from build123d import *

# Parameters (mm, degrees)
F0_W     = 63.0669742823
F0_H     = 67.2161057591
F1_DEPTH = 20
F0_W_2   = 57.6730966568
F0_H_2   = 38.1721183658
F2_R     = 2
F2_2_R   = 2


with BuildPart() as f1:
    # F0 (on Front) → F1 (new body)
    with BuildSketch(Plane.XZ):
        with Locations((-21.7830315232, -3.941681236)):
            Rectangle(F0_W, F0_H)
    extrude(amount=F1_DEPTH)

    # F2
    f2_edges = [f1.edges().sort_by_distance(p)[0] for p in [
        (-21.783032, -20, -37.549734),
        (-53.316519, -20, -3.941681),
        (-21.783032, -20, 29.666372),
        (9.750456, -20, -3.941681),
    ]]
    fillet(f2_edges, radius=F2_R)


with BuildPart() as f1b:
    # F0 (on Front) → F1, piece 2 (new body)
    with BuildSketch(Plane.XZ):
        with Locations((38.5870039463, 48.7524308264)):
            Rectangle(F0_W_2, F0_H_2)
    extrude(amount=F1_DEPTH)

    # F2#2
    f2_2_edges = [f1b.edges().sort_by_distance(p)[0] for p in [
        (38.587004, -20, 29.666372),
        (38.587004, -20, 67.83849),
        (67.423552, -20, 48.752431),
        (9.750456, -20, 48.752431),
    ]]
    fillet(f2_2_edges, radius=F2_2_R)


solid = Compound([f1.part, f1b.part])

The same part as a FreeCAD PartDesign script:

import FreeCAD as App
import Part
import Sketcher
Q = App.Units.Quantity


def edges_at(feature, points):
    """Names of the edges that pass closest to the given points."""
    edges = feature.Shape.Edges
    near = lambda p: min(range(len(edges)), key=lambda i: edges[i].distToShape(Part.Vertex(*p))[0])
    return sorted({f"Edge{near(p) + 1}" for p in points})


def add_polygon(sketch, points):
    """Adds a closed chain of lines whose ends are joined by coincident constraints."""
    first, n = sketch.GeometryCount, len(points)
    for a, b in zip(points, points[1:] + points[:1]):
        sketch.addGeometry(Part.LineSegment(App.Vector(*a, 0), App.Vector(*b, 0)), False)
    for i in range(n):
        sketch.addConstraint(Sketcher.Constraint("Coincident", first + i, 2, first + (i + 1) % n, 1))

doc = App.newDocument("Part")
body = doc.addObject("PartDesign::Body", "Body")

sketch1 = body.newObject("Sketcher::SketchObject", "Sketch")
sketch1.AttachmentSupport = (doc.getObject("XZ_Plane"), [""])
sketch1.MapMode = "FlatFace"
add_polygon(sketch1, [(-53, 30), (-53, -38), (10, -38), (10, 30)])
sketch1.addConstraint(Sketcher.Constraint("Vertical", 0))
sketch1.addConstraint(Sketcher.Constraint("Horizontal", 1))
sketch1.addConstraint(Sketcher.Constraint("Vertical", 2))
sketch1.addConstraint(Sketcher.Constraint("Horizontal", 3))
sketch1.addConstraint(Sketcher.Constraint("DistanceX", 1, 1, 1, 2, Q("63.066974 mm")))
sketch1.addConstraint(Sketcher.Constraint("DistanceY", 0, 2, 0, 1, Q("67.216106 mm")))
sketch1.addConstraint(Sketcher.Constraint("DistanceX", 0, 2, -1, 1, Q("53.316519 mm")))
sketch1.addConstraint(Sketcher.Constraint("DistanceY", -1, 1, 2, 2, Q("29.666372 mm")))
pad1 = body.newObject("PartDesign::Pad", "Pad")
pad1.Profile = sketch1
pad1.Length = 20
doc.recompute()

fillet = body.newObject("PartDesign::Fillet", "Fillet")
fillet.Base = (pad1, edges_at(pad1, [
    (-21.783, -20, -37.55),
    (-53.317, -20, -3.942),
    (-21.783, -20, 29.666),
    (9.75, -20, -3.942),
]))
fillet.Radius = 2
body2 = doc.addObject("PartDesign::Body", "Body001")

sketch2 = body2.newObject("Sketcher::SketchObject", "Sketch001")
sketch2.AttachmentSupport = (doc.getObject("XZ_Plane001"), [""])
sketch2.MapMode = "FlatFace"
add_polygon(sketch2, [(10, 68), (10, 30), (67, 30), (67, 68)])
sketch2.addConstraint(Sketcher.Constraint("Vertical", 0))
sketch2.addConstraint(Sketcher.Constraint("Horizontal", 1))
sketch2.addConstraint(Sketcher.Constraint("Vertical", 2))
sketch2.addConstraint(Sketcher.Constraint("Horizontal", 3))
sketch2.addConstraint(Sketcher.Constraint("DistanceY", 0, 2, 0, 1, Q("38.172118 mm")))
sketch2.addConstraint(Sketcher.Constraint("DistanceX", 1, 1, 1, 2, Q("57.673097 mm")))
sketch2.addConstraint(Sketcher.Constraint("DistanceY", -1, 1, 0, 2, Q("29.666372 mm")))
sketch2.addConstraint(Sketcher.Constraint("DistanceX", -1, 1, 0, 2, Q("9.750456 mm")))
pad2 = body2.newObject("PartDesign::Pad", "Pad001")
pad2.Profile = sketch2
pad2.Length = 20
doc.recompute()

fillet2 = body2.newObject("PartDesign::Fillet", "Fillet001")
fillet2.Base = (pad2, edges_at(pad2, [
    (38.587, -20, 29.666),
    (38.587, -20, 67.838),
    (67.424, -20, 48.752),
    (9.75, -20, 48.752),
]))
fillet2.Radius = 2

doc.recompute()
